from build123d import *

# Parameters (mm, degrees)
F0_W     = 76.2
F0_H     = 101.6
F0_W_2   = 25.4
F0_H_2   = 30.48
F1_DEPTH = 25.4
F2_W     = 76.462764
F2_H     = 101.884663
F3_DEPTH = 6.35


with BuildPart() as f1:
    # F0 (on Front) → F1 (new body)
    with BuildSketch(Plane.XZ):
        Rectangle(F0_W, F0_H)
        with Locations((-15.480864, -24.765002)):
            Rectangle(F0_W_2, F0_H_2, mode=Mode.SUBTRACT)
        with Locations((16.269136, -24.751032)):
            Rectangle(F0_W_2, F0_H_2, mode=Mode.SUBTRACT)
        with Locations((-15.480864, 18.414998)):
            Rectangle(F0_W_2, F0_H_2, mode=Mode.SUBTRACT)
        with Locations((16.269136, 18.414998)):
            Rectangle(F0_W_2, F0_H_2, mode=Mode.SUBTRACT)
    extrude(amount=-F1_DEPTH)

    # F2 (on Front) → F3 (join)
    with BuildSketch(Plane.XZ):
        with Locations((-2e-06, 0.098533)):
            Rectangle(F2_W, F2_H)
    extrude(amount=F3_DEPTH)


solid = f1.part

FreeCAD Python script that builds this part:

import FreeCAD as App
import Part
import Sketcher

V = App.Vector
Q = App.Units.Quantity

doc = App.newDocument("Part")
body = doc.addObject("PartDesign::Body", "Body")

sketch1 = body.newObject("Sketcher::SketchObject", "Sketch")
sketch1.AttachmentSupport = (doc.getObject("XZ_Plane"), [""])
sketch1.MapMode = "FlatFace"
sketch1.addGeometry([
    Part.LineSegment(V(-38, 51, 0), V(-38, -51, 0)),
    Part.LineSegment(V(-38, -51, 0), V(38, -51, 0)),
    Part.LineSegment(V(38, -51, 0), V(38, 51, 0)),
    Part.LineSegment(V(38, 51, 0), V(-38, 51, 0)),
    Part.LineSegment(V(-3, -40, 0), V(-28, -40, 0)),
    Part.LineSegment(V(-28, -40, 0), V(-28, -10, 0)),
    Part.LineSegment(V(-28, -10, 0), V(-3, -10, 0)),
    Part.LineSegment(V(-3, -10, 0), V(-3, -40, 0)),
    Part.LineSegment(V(29, -40, 0), V(4, -40, 0)),
    Part.LineSegment(V(4, -40, 0), V(4, -10, 0)),
    Part.LineSegment(V(4, -10, 0), V(29, -10, 0)),
    Part.LineSegment(V(29, -10, 0), V(29, -40, 0)),
    Part.LineSegment(V(-3, 3, 0), V(-28, 3, 0)),
    Part.LineSegment(V(-28, 3, 0), V(-28, 34, 0)),
    Part.LineSegment(V(-28, 34, 0), V(-3, 34, 0)),
    Part.LineSegment(V(-3, 34, 0), V(-3, 3, 0)),
    Part.LineSegment(V(29, 3, 0), V(4, 3, 0)),
    Part.LineSegment(V(4, 3, 0), V(4, 34, 0)),
    Part.LineSegment(V(4, 34, 0), V(29, 34, 0)),
    Part.LineSegment(V(29, 34, 0), V(29, 3, 0)),
], False)
sketch1.addConstraint([
    Sketcher.Constraint("Coincident", 0, 2, 1, 1),
    Sketcher.Constraint("Coincident", 1, 2, 2, 1),
    Sketcher.Constraint("Coincident", 2, 2, 3, 1),
    Sketcher.Constraint("Coincident", 3, 2, 0, 1),
    Sketcher.Constraint("Coincident", 4, 2, 5, 1),
    Sketcher.Constraint("Coincident", 5, 2, 6, 1),
    Sketcher.Constraint("Coincident", 6, 2, 7, 1),
    Sketcher.Constraint("Coincident", 7, 2, 4, 1),
    Sketcher.Constraint("Coincident", 8, 2, 9, 1),
    Sketcher.Constraint("Coincident", 9, 2, 10, 1),
    Sketcher.Constraint("Coincident", 10, 2, 11, 1),
    Sketcher.Constraint("Coincident", 11, 2, 8, 1),
    Sketcher.Constraint("Coincident", 12, 2, 13, 1),
    Sketcher.Constraint("Coincident", 13, 2, 14, 1),
    Sketcher.Constraint("Coincident", 14, 2, 15, 1),
    Sketcher.Constraint("Coincident", 15, 2, 12, 1),
    Sketcher.Constraint("Coincident", 16, 2, 17, 1),
    Sketcher.Constraint("Coincident", 17, 2, 18, 1),
    Sketcher.Constraint("Coincident", 18, 2, 19, 1),
    Sketcher.Constraint("Coincident", 19, 2, 16, 1),
    Sketcher.Constraint("Vertical", 0),
    Sketcher.Constraint("Horizontal", 1),
    Sketcher.Constraint("Vertical", 2),
    Sketcher.Constraint("Horizontal", 3),
    Sketcher.Constraint("Horizontal", 4),
    Sketcher.Constraint("Vertical", 5),
    Sketcher.Constraint("Horizontal", 6),
    Sketcher.Constraint("Vertical", 7),
    Sketcher.Constraint("Horizontal", 8),
    Sketcher.Constraint("Vertical", 9),
    Sketcher.Constraint("Horizontal", 10),
    Sketcher.Constraint("Vertical", 11),
    Sketcher.Constraint("Horizontal", 12),
    Sketcher.Constraint("Vertical", 13),
    Sketcher.Constraint("Horizontal", 14),
    Sketcher.Constraint("Vertical", 15),
    Sketcher.Constraint("Horizontal", 16),
    Sketcher.Constraint("Vertical", 17),
    Sketcher.Constraint("Horizontal", 18),
    Sketcher.Constraint("Vertical", 19),
    Sketcher.Constraint("Symmetric", 0, 2, 2, 2, -1, 1),
    Sketcher.Constraint("Horizontal", 15, 2, 16, 2),
    Sketcher.Constraint("Horizontal", 14, 2, 17, 2),
    Sketcher.Constraint("Vertical", 5, 2, 12, 2),
    Sketcher.Constraint("Vertical", 7, 2, 14, 2),
    Sketcher.Constraint("Vertical", 9, 2, 16, 2),
    Sketcher.Constraint("Vertical", 11, 2, 18, 2),
    Sketcher.Constraint("Equal", 6, 8),
    Sketcher.Constraint("Equal", 7, 9),
    Sketcher.Constraint("Equal", 11, 13),
    Sketcher.Constraint("DistanceX", 1, 1, 1, 2, Q("3 in")),
    Sketcher.Constraint("DistanceX", 4, 2, 4, 1, Q("1 in")),
    Sketcher.Constraint("DistanceY", 0, 2, 0, 1, Q("4 in")),
    Sketcher.Constraint("DistanceY", 5, 1, 5, 2, Q("1.2 in")),
    Sketcher.Constraint("DistanceY", 5, 2, 12, 2, Q("0.5 in")),
    Sketcher.Constraint("DistanceX", 7, 2, 8, 2, Q("0.25 in")),
    Sketcher.Constraint("DistanceY", 4, 2, -1, 1, Q("1.5750001 in")),
    Sketcher.Constraint("DistanceY", 8, 2, -1, 1, 39.991032),
    Sketcher.Constraint("DistanceX", 4, 2, -1, 1, 28.180864),
])
pad1 = body.newObject("PartDesign::Pad", "Pad")
pad1.Profile = sketch1
pad1.Length = Q("1 in")
pad1.Reversed = True

sketch2 = body.newObject("Sketcher::SketchObject", "Sketch001")
sketch2.AttachmentSupport = (doc.getObject("XZ_Plane"), [""])
sketch2.MapMode = "FlatFace"
sketch2.addGeometry([
    Part.LineSegment(V(-38, 51, 0), V(-38, -51, 0)),
    Part.LineSegment(V(-38, -51, 0), V(38, -51, 0)),
    Part.LineSegment(V(38, -51, 0), V(38, 51, 0)),
    Part.LineSegment(V(38, 51, 0), V(-38, 51, 0)),
], False)
sketch2.addConstraint([
    Sketcher.Constraint("Coincident", 0, 2, 1, 1),
    Sketcher.Constraint("Coincident", 1, 2, 2, 1),
    Sketcher.Constraint("Coincident", 2, 2, 3, 1),
    Sketcher.Constraint("Coincident", 3, 2, 0, 1),
    Sketcher.Constraint("Vertical", 0),
    Sketcher.Constraint("Horizontal", 1),
    Sketcher.Constraint("Vertical", 2),
    Sketcher.Constraint("Horizontal", 3),
    Sketcher.Constraint("DistanceY", 0, 2, -1, 1, 50.843798),
    Sketcher.Constraint("DistanceX", 1, 1, 1, 2, 76.462764),
    Sketcher.Constraint("DistanceY", 0, 2, 0, 1, 101.884663),
    Sketcher.Constraint("DistanceX", -1, 1, 1, 2, 38.23138),
])
pad2 = body.newObject("PartDesign::Pad", "Pad001")
pad2.Profile = sketch2
pad2.Length = Q("0.25 in")

doc.recompute()
